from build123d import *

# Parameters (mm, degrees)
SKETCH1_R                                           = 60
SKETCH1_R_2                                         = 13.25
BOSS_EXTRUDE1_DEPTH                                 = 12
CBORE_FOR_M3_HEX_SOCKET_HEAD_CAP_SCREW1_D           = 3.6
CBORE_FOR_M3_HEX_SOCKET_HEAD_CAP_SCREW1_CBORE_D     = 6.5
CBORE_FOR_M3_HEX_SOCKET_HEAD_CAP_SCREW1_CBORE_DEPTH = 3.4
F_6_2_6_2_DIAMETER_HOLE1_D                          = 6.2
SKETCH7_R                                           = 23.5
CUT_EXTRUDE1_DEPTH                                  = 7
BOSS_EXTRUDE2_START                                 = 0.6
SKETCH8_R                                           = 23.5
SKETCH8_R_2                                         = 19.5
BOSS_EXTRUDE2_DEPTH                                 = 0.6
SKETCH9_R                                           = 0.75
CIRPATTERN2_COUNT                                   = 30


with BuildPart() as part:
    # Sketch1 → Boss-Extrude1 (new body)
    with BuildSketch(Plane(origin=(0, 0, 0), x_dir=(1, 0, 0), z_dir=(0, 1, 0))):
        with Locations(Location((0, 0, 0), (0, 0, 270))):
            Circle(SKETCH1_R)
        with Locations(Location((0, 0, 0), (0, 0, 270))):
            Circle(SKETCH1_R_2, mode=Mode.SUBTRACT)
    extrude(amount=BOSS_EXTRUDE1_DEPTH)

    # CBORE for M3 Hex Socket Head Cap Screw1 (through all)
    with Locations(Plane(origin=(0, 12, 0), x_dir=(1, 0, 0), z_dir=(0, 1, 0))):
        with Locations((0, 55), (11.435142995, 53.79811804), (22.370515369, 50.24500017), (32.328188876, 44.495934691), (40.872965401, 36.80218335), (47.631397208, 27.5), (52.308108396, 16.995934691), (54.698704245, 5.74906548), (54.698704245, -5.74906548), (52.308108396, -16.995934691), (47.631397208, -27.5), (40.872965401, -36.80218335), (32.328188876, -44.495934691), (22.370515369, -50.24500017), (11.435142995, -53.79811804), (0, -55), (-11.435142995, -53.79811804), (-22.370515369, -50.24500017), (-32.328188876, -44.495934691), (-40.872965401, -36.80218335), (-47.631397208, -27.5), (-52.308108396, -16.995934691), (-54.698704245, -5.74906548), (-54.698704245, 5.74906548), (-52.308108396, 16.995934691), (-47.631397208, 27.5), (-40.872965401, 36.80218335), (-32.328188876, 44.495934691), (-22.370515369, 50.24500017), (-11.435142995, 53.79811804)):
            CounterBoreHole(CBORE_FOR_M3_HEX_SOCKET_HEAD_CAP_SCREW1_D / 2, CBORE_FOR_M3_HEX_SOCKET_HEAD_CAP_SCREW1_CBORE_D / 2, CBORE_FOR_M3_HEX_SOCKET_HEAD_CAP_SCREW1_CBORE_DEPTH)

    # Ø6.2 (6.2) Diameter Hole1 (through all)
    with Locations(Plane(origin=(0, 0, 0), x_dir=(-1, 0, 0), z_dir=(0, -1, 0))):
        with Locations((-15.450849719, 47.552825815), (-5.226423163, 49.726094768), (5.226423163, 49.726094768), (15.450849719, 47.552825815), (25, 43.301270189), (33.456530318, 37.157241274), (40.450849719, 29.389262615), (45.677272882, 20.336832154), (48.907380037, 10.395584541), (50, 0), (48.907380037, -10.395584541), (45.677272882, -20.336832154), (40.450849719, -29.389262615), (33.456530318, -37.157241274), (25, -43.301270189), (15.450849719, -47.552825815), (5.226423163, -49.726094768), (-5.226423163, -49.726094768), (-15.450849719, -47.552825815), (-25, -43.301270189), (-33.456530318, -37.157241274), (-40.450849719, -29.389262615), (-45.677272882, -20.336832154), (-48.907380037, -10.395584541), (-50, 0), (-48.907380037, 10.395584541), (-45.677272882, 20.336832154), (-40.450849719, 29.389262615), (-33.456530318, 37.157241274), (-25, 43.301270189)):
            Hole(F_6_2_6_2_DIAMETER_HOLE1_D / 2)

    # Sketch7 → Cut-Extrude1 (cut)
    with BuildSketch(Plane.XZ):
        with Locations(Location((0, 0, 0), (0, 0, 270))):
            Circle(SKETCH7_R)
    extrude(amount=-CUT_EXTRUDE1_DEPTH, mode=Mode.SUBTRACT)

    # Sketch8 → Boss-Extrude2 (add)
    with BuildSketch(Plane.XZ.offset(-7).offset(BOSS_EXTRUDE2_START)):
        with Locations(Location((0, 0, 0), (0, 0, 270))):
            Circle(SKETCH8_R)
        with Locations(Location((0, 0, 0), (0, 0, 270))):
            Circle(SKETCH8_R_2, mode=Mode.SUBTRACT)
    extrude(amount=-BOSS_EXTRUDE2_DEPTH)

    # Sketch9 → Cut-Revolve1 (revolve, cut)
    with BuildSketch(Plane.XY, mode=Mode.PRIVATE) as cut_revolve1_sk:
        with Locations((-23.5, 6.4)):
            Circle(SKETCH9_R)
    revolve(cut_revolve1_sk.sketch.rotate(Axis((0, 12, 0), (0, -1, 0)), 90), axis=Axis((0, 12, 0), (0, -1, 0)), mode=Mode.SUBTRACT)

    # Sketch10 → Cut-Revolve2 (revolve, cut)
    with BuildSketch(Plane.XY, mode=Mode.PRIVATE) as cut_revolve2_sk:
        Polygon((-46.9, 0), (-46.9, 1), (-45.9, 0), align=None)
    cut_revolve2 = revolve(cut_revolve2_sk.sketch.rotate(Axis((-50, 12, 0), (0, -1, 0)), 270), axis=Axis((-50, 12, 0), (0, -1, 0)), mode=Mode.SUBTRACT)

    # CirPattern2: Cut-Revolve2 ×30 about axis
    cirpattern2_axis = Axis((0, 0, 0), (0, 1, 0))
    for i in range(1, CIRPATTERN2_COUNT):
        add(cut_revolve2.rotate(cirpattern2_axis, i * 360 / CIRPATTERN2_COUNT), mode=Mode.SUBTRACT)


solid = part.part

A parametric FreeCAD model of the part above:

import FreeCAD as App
import Part
import Sketcher
Q = App.Units.Quantity


def add_polygon(sketch, points):
    """Adds a closed chain of lines whose ends are joined by coincident constraints."""
    first, n = sketch.GeometryCount, len(points)
    for a, b in zip(points, points[1:] + points[:1]):
        sketch.addGeometry(Part.LineSegment(App.Vector(*a, 0), App.Vector(*b, 0)), False)
    for i in range(n):
        sketch.addConstraint(Sketcher.Constraint("Coincident", first + i, 2, first + (i + 1) % n, 1))

doc = App.newDocument("Part")
body = doc.addObject("PartDesign::Body", "Body")

sketch1 = body.newObject("Sketcher::SketchObject", "Sketch")
sketch1.AttachmentSupport = (doc.getObject("XZ_Plane"), [""])
sketch1.MapMode = "FlatFace"
sketch1.addGeometry(Part.Circle(App.Vector(0, 0, 0), App.Vector(0, 0, 1), 60), False)
sketch1.addGeometry(Part.Circle(App.Vector(0, 0, 0), App.Vector(0, 0, 1), 13.25), False)
sketch1.addConstraint(Sketcher.Constraint("Coincident", 0, 3, -1, 1))
sketch1.addConstraint(Sketcher.Constraint("Coincident", 1, 3, -1, 1))
sketch1.addConstraint(Sketcher.Constraint("Diameter", 0, Q("120 mm")))
sketch1.addConstraint(Sketcher.Constraint("Diameter", 1, Q("26.5 mm")))
pad1 = body.newObject("PartDesign::Pad", "Pad")
pad1.Profile = sketch1
pad1.Length = 12
pad1.Reversed = True

sketch2 = body.newObject("Sketcher::SketchObject", "Sketch001")
sketch2.AttachmentSupport = (doc.getObject("XZ_Plane"), [""])
sketch2.MapMode = "FlatFace"
sketch2.AttachmentOffset = App.Placement(App.Vector(0, 0, -12), App.Rotation())
sketch2.addGeometry(Part.Circle(App.Vector(0, -55, 0), App.Vector(0, 0, 1), 1.8), False)
sketch2.addGeometry(Part.Circle(App.Vector(11.435143, -53.798118, 0), App.Vector(0, 0, 1), 1.8), False)
sketch2.addGeometry(Part.Circle(App.Vector(22.370515, -50.245, 0), App.Vector(0, 0, 1), 1.8), False)
sketch2.addGeometry(Part.Circle(App.Vector(32.328189, -44.495935, 0), App.Vector(0, 0, 1), 1.8), False)
sketch2.addGeometry(Part.Circle(App.Vector(40.872965, -36.802183, 0), App.Vector(0, 0, 1), 1.8), False)
sketch2.addGeometry(Part.Circle(App.Vector(47.631397, -27.5, 0), App.Vector(0, 0, 1), 1.8), False)
sketch2.addGeometry(Part.Circle(App.Vector(52.308108, -16.995935, 0), App.Vector(0, 0, 1), 1.8), False)
sketch2.addGeometry(Part.Circle(App.Vector(54.698704, -5.749065, 0), App.Vector(0, 0, 1), 1.8), False)
sketch2.addGeometry(Part.Circle(App.Vector(54.698704, 5.749065, 0), App.Vector(0, 0, 1), 1.8), False)
sketch2.addGeometry(Part.Circle(App.Vector(52.308108, 16.995935, 0), App.Vector(0, 0, 1), 1.8), False)
sketch2.addGeometry(Part.Circle(App.Vector(47.631397, 27.5, 0), App.Vector(0, 0, 1), 1.8), False)
sketch2.addGeometry(Part.Circle(App.Vector(40.872965, 36.802183, 0), App.Vector(0, 0, 1), 1.8), False)
sketch2.addGeometry(Part.Circle(App.Vector(32.328189, 44.495935, 0), App.Vector(0, 0, 1), 1.8), False)
sketch2.addGeometry(Part.Circle(App.Vector(22.370515, 50.245, 0), App.Vector(0, 0, 1), 1.8), False)
sketch2.addGeometry(Part.Circle(App.Vector(11.435143, 53.798118, 0), App.Vector(0, 0, 1), 1.8), False)
sketch2.addGeometry(Part.Circle(App.Vector(0, 55, 0), App.Vector(0, 0, 1), 1.8), False)
sketch2.addGeometry(Part.Circle(App.Vector(-11.435143, 53.798118, 0), App.Vector(0, 0, 1), 1.8), False)
sketch2.addGeometry(Part.Circle(App.Vector(-22.370515, 50.245, 0), App.Vector(0, 0, 1), 1.8), False)
sketch2.addGeometry(Part.Circle(App.Vector(-32.328189, 44.495935, 0), App.Vector(0, 0, 1), 1.8), False)
sketch2.addGeometry(Part.Circle(App.Vector(-40.872965, 36.802183, 0), App.Vector(0, 0, 1), 1.8), False)
sketch2.addGeometry(Part.Circle(App.Vector(-47.631397, 27.5, 0), App.Vector(0, 0, 1), 1.8), False)
sketch2.addGeometry(Part.Circle(App.Vector(-52.308108, 16.995935, 0), App.Vector(0, 0, 1), 1.8), False)
sketch2.addGeometry(Part.Circle(App.Vector(-54.698704, 5.749065, 0), App.Vector(0, 0, 1), 1.8), False)
sketch2.addGeometry(Part.Circle(App.Vector(-54.698704, -5.749065, 0), App.Vector(0, 0, 1), 1.8), False)
sketch2.addGeometry(Part.Circle(App.Vector(-52.308108, -16.995935, 0), App.Vector(0, 0, 1), 1.8), False)
sketch2.addGeometry(Part.Circle(App.Vector(-47.631397, -27.5, 0), App.Vector(0, 0, 1), 1.8), False)
sketch2.addGeometry(Part.Circle(App.Vector(-40.872965, -36.802183, 0), App.Vector(0, 0, 1), 1.8), False)
sketch2.addGeometry(Part.Circle(App.Vector(-32.328189, -44.495935, 0), App.Vector(0, 0, 1), 1.8), False)
sketch2.addGeometry(Part.Circle(App.Vector(-22.370515, -50.245, 0), App.Vector(0, 0, 1), 1.8), False)
sketch2.addGeometry(Part.Circle(App.Vector(-11.435143, -53.798118, 0), App.Vector(0, 0, 1), 1.8), False)
sketch2.addConstraint(Sketcher.Constraint("Equal", 0, 1))
sketch2.addConstraint(Sketcher.Constraint("Equal", 1, 2))
sketch2.addConstraint(Sketcher.Constraint("Equal", 2, 3))
sketch2.addConstraint(Sketcher.Constraint("Equal", 3, 4))
sketch2.addConstraint(Sketcher.Constraint("Equal", 4, 5))
sketch2.addConstraint(Sketcher.Constraint("Equal", 5, 6))
sketch2.addConstraint(Sketcher.Constraint("Equal", 6, 7))
sketch2.addConstraint(Sketcher.Constraint("Equal", 7, 8))
sketch2.addConstraint(Sketcher.Constraint("Equal", 8, 9))
sketch2.addConstraint(Sketcher.Constraint("Equal", 9, 10))
sketch2.addConstraint(Sketcher.Constraint("Equal", 10, 11))
sketch2.addConstraint(Sketcher.Constraint("Equal", 11, 12))
sketch2.addConstraint(Sketcher.Constraint("Equal", 12, 13))
sketch2.addConstraint(Sketcher.Constraint("Equal", 13, 14))
sketch2.addConstraint(Sketcher.Constraint("Equal", 14, 15))
sketch2.addConstraint(Sketcher.Constraint("Equal", 15, 16))
sketch2.addConstraint(Sketcher.Constraint("Equal", 16, 17))
sketch2.addConstraint(Sketcher.Constraint("Equal", 17, 18))
sketch2.addConstraint(Sketcher.Constraint("Equal", 18, 19))
sketch2.addConstraint(Sketcher.Constraint("Equal", 19, 20))
sketch2.addConstraint(Sketcher.Constraint("Equal", 20, 21))
sketch2.addConstraint(Sketcher.Constraint("Equal", 21, 22))
sketch2.addConstraint(Sketcher.Constraint("Equal", 22, 23))
sketch2.addConstraint(Sketcher.Constraint("Equal", 23, 24))
sketch2.addConstraint(Sketcher.Constraint("Equal", 24, 25))
sketch2.addConstraint(Sketcher.Constraint("Equal", 25, 26))
sketch2.addConstraint(Sketcher.Constraint("Equal", 26, 27))
sketch2.addConstraint(Sketcher.Constraint("Equal", 27, 28))
sketch2.addConstraint(Sketcher.Constraint("Equal", 28, 29))
sketch2.addConstraint(Sketcher.Constraint("Symmetric", 0, 3, 15, 3, -1, 1))
sketch2.addConstraint(Sketcher.Constraint("Symmetric", 1, 3, 16, 3, -1, 1))
sketch2.addConstraint(Sketcher.Constraint("Symmetric", 2, 3, 17, 3, -1, 1))
sketch2.addConstraint(Sketcher.Constraint("Symmetric", 3, 3, 18, 3, -1, 1))
sketch2.addConstraint(Sketcher.Constraint("Symmetric", 4, 3, 19, 3, -1, 1))
sketch2.addConstraint(Sketcher.Constraint("Symmetric", 5, 3, 20, 3, -1, 1))
sketch2.addConstraint(Sketcher.Constraint("Symmetric", 6, 3, 21, 3, -1, 1))
sketch2.addConstraint(Sketcher.Constraint("Symmetric", 7, 3, 22, 3, -1, 1))
sketch2.addConstraint(Sketcher.Constraint("Symmetric", 8, 3, 23, 3, -1, 1))
sketch2.addConstraint(Sketcher.Constraint("Symmetric", 9, 3, 24, 3, -1, 1))
sketch2.addConstraint(Sketcher.Constraint("Symmetric", 10, 3, 25, 3, -1, 1))
sketch2.addConstraint(Sketcher.Constraint("Symmetric", 11, 3, 26, 3, -1, 1))
sketch2.addConstraint(Sketcher.Constraint("Symmetric", 12, 3, 27, 3, -1, 1))
sketch2.addConstraint(Sketcher.Constraint("Symmetric", 13, 3, 28, 3, -1, 1))
sketch2.addConstraint(Sketcher.Constraint("Symmetric", 14, 3, 29, 3, -1, 1))
sketch2.addConstraint(Sketcher.Constraint("Symmetric", 14, 3, 16, 3, -2))
sketch2.addConstraint(Sketcher.Constraint("Symmetric", 13, 3, 17, 3, -2))
sketch2.addConstraint(Sketcher.Constraint("Symmetric", 12, 3, 18, 3, -2))
sketch2.addConstraint(Sketcher.Constraint("Symmetric", 11, 3, 19, 3, -2))
sketch2.addConstraint(Sketcher.Constraint("Symmetric", 10, 3, 20, 3, -2))
sketch2.addConstraint(Sketcher.Constraint("Symmetric", 9, 3, 21, 3, -2))
sketch2.addConstraint(Sketcher.Constraint("Symmetric", 8, 3, 22, 3, -2))
sketch2.addConstraint(Sketcher.Constraint("PointOnObject", 0, 3, -2))
sketch2.addConstraint(Sketcher.Constraint("Diameter", 0, Q("3.6 mm")))
sketch2.addConstraint(Sketcher.Constraint("DistanceY", 0, 3, -1, 1, Q("55 mm")))
sketch2.addConstraint(Sketcher.Constraint("DistanceY", 5, 3, 10, 3, Q("55 mm")))
sketch2.addConstraint(Sketcher.Constraint("DistanceY", 3, 3, 6, 3, Q("27.5 mm")))
sketch2.addConstraint(Sketcher.Constraint("DistanceY", 2, 3, -1, 1, Q("50.245 mm")))
sketch2.addConstraint(Sketcher.Constraint("DistanceY", 6, 3, 8, 3, Q("22.745 mm")))
sketch2.addConstraint(Sketcher.Constraint("DistanceY", 1, 3, -1, 1, Q("53.798118 mm")))
sketch2.addConstraint(Sketcher.Constraint("DistanceX", -1, 1, 3, 3, Q("32.328189 mm")))
sketch2.addConstraint(Sketcher.Constraint("DistanceX", -1, 1, 6, 3, Q("52.308108 mm")))
sketch2.addConstraint(Sketcher.Constraint("DistanceY", 3, 3, 4, 3, Q("7.693751 mm")))
sketch2.addConstraint(Sketcher.Constraint("DistanceX", 2, 3, 4, 3, Q("18.50245 mm")))
sketch2.addConstraint(Sketcher.Constraint("DistanceX", 4, 3, 5, 3, Q("6.758432 mm")))
sketch2.addConstraint(Sketcher.Constraint("DistanceX", 3, 3, 5, 3, Q("15.303208 mm")))
sketch2.addConstraint(Sketcher.Constraint("DistanceY", 6, 3, 7, 3, Q("11.246869 mm")))
sketch2.addConstraint(Sketcher.Constraint("DistanceX", 4, 3, 7, 3, Q("13.825739 mm")))
sketch2.addConstraint(Sketcher.Constraint("DistanceX", 16, 3, 13, 3, Q("33.805658 mm")))
doc.recompute()
hole = body.newObject("PartDesign::Hole", "Hole")
hole.Profile = sketch2
hole.ThreadType = "None"
hole.Diameter = 3.6
hole.DepthType = "ThroughAll"
hole.HoleCutType = "Counterbore"
hole.HoleCutDiameter = 6.5
hole.HoleCutDepth = 3.4
hole.Reversed = True

sketch3 = body.newObject("Sketcher::SketchObject", "Sketch002")
sketch3.AttachmentSupport = (doc.getObject("XZ_Plane"), [""])
sketch3.MapMode = "FlatFace"
sketch3.addGeometry(Part.Circle(App.Vector(15.45085, -47.552826, 0), App.Vector(0, 0, 1), 3.1), False)
sketch3.addGeometry(Part.Circle(App.Vector(5.226423, -49.726095, 0), App.Vector(0, 0, 1), 3.1), False)
sketch3.addGeometry(Part.Circle(App.Vector(-5.226423, -49.726095, 0), App.Vector(0, 0, 1), 3.1), False)
sketch3.addGeometry(Part.Circle(App.Vector(-15.45085, -47.552826, 0), App.Vector(0, 0, 1), 3.1), False)
sketch3.addGeometry(Part.Circle(App.Vector(-25, -43.30127, 0), App.Vector(0, 0, 1), 3.1), False)
sketch3.addGeometry(Part.Circle(App.Vector(-33.45653, -37.157241, 0), App.Vector(0, 0, 1), 3.1), False)
sketch3.addGeometry(Part.Circle(App.Vector(-40.45085, -29.389263, 0), App.Vector(0, 0, 1), 3.1), False)
sketch3.addGeometry(Part.Circle(App.Vector(-45.677273, -20.336832, 0), App.Vector(0, 0, 1), 3.1), False)
sketch3.addGeometry(Part.Circle(App.Vector(-48.90738, -10.395585, 0), App.Vector(0, 0, 1), 3.1), False)
sketch3.addGeometry(Part.Circle(App.Vector(-50, 0, 0), App.Vector(0, 0, 1), 3.1), False)
sketch3.addGeometry(Part.Circle(App.Vector(-48.90738, 10.395585, 0), App.Vector(0, 0, 1), 3.1), False)
sketch3.addGeometry(Part.Circle(App.Vector(-45.677273, 20.336832, 0), App.Vector(0, 0, 1), 3.1), False)
sketch3.addGeometry(Part.Circle(App.Vector(-40.45085, 29.389263, 0), App.Vector(0, 0, 1), 3.1), False)
sketch3.addGeometry(Part.Circle(App.Vector(-33.45653, 37.157241, 0), App.Vector(0, 0, 1), 3.1), False)
sketch3.addGeometry(Part.Circle(App.Vector(-25, 43.30127, 0), App.Vector(0, 0, 1), 3.1), False)
sketch3.addGeometry(Part.Circle(App.Vector(-15.45085, 47.552826, 0), App.Vector(0, 0, 1), 3.1), False)
sketch3.addGeometry(Part.Circle(App.Vector(-5.226423, 49.726095, 0), App.Vector(0, 0, 1), 3.1), False)
sketch3.addGeometry(Part.Circle(App.Vector(5.226423, 49.726095, 0), App.Vector(0, 0, 1), 3.1), False)
sketch3.addGeometry(Part.Circle(App.Vector(15.45085, 47.552826, 0), App.Vector(0, 0, 1), 3.1), False)
sketch3.addGeometry(Part.Circle(App.Vector(25, 43.30127, 0), App.Vector(0, 0, 1), 3.1), False)
sketch3.addGeometry(Part.Circle(App.Vector(33.45653, 37.157241, 0), App.Vector(0, 0, 1), 3.1), False)
sketch3.addGeometry(Part.Circle(App.Vector(40.45085, 29.389263, 0), App.Vector(0, 0, 1), 3.1), False)
sketch3.addGeometry(Part.Circle(App.Vector(45.677273, 20.336832, 0), App.Vector(0, 0, 1), 3.1), False)
sketch3.addGeometry(Part.Circle(App.Vector(48.90738, 10.395585, 0), App.Vector(0, 0, 1), 3.1), False)
sketch3.addGeometry(Part.Circle(App.Vector(50, 0, 0), App.Vector(0, 0, 1), 3.1), False)
sketch3.addGeometry(Part.Circle(App.Vector(48.90738, -10.395585, 0), App.Vector(0, 0, 1), 3.1), False)
sketch3.addGeometry(Part.Circle(App.Vector(45.677273, -20.336832, 0), App.Vector(0, 0, 1), 3.1), False)
sketch3.addGeometry(Part.Circle(App.Vector(40.45085, -29.389263, 0), App.Vector(0, 0, 1), 3.1), False)
sketch3.addGeometry(Part.Circle(App.Vector(33.45653, -37.157241, 0), App.Vector(0, 0, 1), 3.1), False)
sketch3.addGeometry(Part.Circle(App.Vector(25, -43.30127, 0), App.Vector(0, 0, 1), 3.1), False)
sketch3.addConstraint(Sketcher.Constraint("Equal", 0, 1))
sketch3.addConstraint(Sketcher.Constraint("Equal", 1, 2))
sketch3.addConstraint(Sketcher.Constraint("Equal", 2, 3))
sketch3.addConstraint(Sketcher.Constraint("Equal", 3, 4))
sketch3.addConstraint(Sketcher.Constraint("Equal", 4, 5))
sketch3.addConstraint(Sketcher.Constraint("Equal", 5, 6))
sketch3.addConstraint(Sketcher.Constraint("Equal", 6, 7))
sketch3.addConstraint(Sketcher.Constraint("Equal", 7, 8))
sketch3.addConstraint(Sketcher.Constraint("Equal", 8, 9))
sketch3.addConstraint(Sketcher.Constraint("Equal", 9, 10))
sketch3.addConstraint(Sketcher.Constraint("Equal", 10, 11))
sketch3.addConstraint(Sketcher.Constraint("Equal", 11, 12))
sketch3.addConstraint(Sketcher.Constraint("Equal", 12, 13))
sketch3.addConstraint(Sketcher.Constraint("Equal", 13, 14))
sketch3.addConstraint(Sketcher.Constraint("Equal", 14, 15))
sketch3.addConstraint(Sketcher.Constraint("Equal", 15, 16))
sketch3.addConstraint(Sketcher.Constraint("Equal", 16, 17))
sketch3.addConstraint(Sketcher.Constraint("Equal", 17, 18))
sketch3.addConstraint(Sketcher.Constraint("Equal", 18, 19))
sketch3.addConstraint(Sketcher.Constraint("Equal", 19, 20))
sketch3.addConstraint(Sketcher.Constraint("Equal", 20, 21))
sketch3.addConstraint(Sketcher.Constraint("Equal", 21, 22))
sketch3.addConstraint(Sketcher.Constraint("Equal", 22, 23))
sketch3.addConstraint(Sketcher.Constraint("Equal", 23, 24))
sketch3.addConstraint(Sketcher.Constraint("Equal", 24, 25))
sketch3.addConstraint(Sketcher.Constraint("Equal", 25, 26))
sketch3.addConstraint(Sketcher.Constraint("Equal", 26, 27))
sketch3.addConstraint(Sketcher.Constraint("Equal", 27, 28))
sketch3.addConstraint(Sketcher.Constraint("Equal", 28, 29))
sketch3.addConstraint(Sketcher.Constraint("Symmetric", 0, 3, 15, 3, -1, 1))
sketch3.addConstraint(Sketcher.Constraint("Symmetric", 1, 3, 16, 3, -1, 1))
sketch3.addConstraint(Sketcher.Constraint("Symmetric", 2, 3, 17, 3, -1, 1))
sketch3.addConstraint(Sketcher.Constraint("Symmetric", 3, 3, 18, 3, -1, 1))
sketch3.addConstraint(Sketcher.Constraint("Symmetric", 4, 3, 19, 3, -1, 1))
sketch3.addConstraint(Sketcher.Constraint("Symmetric", 5, 3, 20, 3, -1, 1))
sketch3.addConstraint(Sketcher.Constraint("Symmetric", 6, 3, 21, 3, -1, 1))
sketch3.addConstraint(Sketcher.Constraint("Symmetric", 7, 3, 22, 3, -1, 1))
sketch3.addConstraint(Sketcher.Constraint("Symmetric", 8, 3, 23, 3, -1, 1))
sketch3.addConstraint(Sketcher.Constraint("Symmetric", 9, 3, 24, 3, -1, 1))
sketch3.addConstraint(Sketcher.Constraint("Symmetric", 10, 3, 25, 3, -1, 1))
sketch3.addConstraint(Sketcher.Constraint("Symmetric", 11, 3, 26, 3, -1, 1))
sketch3.addConstraint(Sketcher.Constraint("Symmetric", 12, 3, 27, 3, -1, 1))
sketch3.addConstraint(Sketcher.Constraint("Symmetric", 13, 3, 28, 3, -1, 1))
sketch3.addConstraint(Sketcher.Constraint("Symmetric", 14, 3, 29, 3, -1, 1))
sketch3.addConstraint(Sketcher.Constraint("Symmetric", 1, 3, 2, 3, -2))
sketch3.addConstraint(Sketcher.Constraint("Symmetric", 0, 3, 3, 3, -2))
sketch3.addConstraint(Sketcher.Constraint("Symmetric", 14, 3, 19, 3, -2))
sketch3.addConstraint(Sketcher.Constraint("Symmetric", 13, 3, 20, 3, -2))
sketch3.addConstraint(Sketcher.Constraint("Symmetric", 12, 3, 21, 3, -2))
sketch3.addConstraint(Sketcher.Constraint("Symmetric", 11, 3, 22, 3, -2))
sketch3.addConstraint(Sketcher.Constraint("Symmetric", 10, 3, 23, 3, -2))
sketch3.addConstraint(Sketcher.Constraint("PointOnObject", 9, 3, -1))
sketch3.addConstraint(Sketcher.Constraint("Diameter", 0, Q("6.2 mm")))
sketch3.addConstraint(Sketcher.Constraint("DistanceX", 4, 3, -1, 1, Q("25 mm")))
sketch3.addConstraint(Sketcher.Constraint("DistanceX", 9, 3, -1, 1, Q("50 mm")))
sketch3.addConstraint(Sketcher.Constraint("DistanceX", 6, 3, 3, 3, Q("25 mm")))
sketch3.addConstraint(Sketcher.Constraint("DistanceX", 3, 3, 0, 3, Q("30.901699 mm")))
sketch3.addConstraint(Sketcher.Constraint("DistanceY", 4, 3, -1, 1, Q("43.30127 mm")))
sketch3.addConstraint(Sketcher.Constraint("DistanceX", 5, 3, -1, 1, Q("33.45653 mm")))
sketch3.addConstraint(Sketcher.Constraint("DistanceY", 5, 3, -1, 1, Q("37.157241 mm")))
sketch3.addConstraint(Sketcher.Constraint("DistanceX", 8, 3, -1, 1, Q("48.90738 mm")))
sketch3.addConstraint(Sketcher.Constraint("DistanceY", 1, 3, 0, 3, Q("2.173269 mm")))
sketch3.addConstraint(Sketcher.Constraint("DistanceY", 5, 3, 6, 3, Q("7.767979 mm")))
sketch3.addConstraint(Sketcher.Constraint("DistanceY", 6, 3, 7, 3, Q("9.05243 mm")))
sketch3.addConstraint(Sketcher.Constraint("DistanceX", 7, 3, 2, 3, Q("40.45085 mm")))
sketch3.addConstraint(Sketcher.Constraint("DistanceY", 6, 3, 8, 3, Q("18.993678 mm")))
sketch3.addConstraint(Sketcher.Constraint("DistanceY", 3, 3, 8, 3, Q("37.157241 mm")))
sketch3.addConstraint(Sketcher.Constraint("DistanceX", -1, 1, 1, 3, Q("5.226423 mm")))
doc.recompute()
hole2 = body.newObject("PartDesign::Hole", "Hole001")
hole2.Profile = sketch3
hole2.ThreadType = "None"
hole2.Diameter = 6.2
hole2.DepthType = "ThroughAll"

sketch4 = body.newObject("Sketcher::SketchObject", "Sketch003")
sketch4.AttachmentSupport = (doc.getObject("XZ_Plane"), [""])
sketch4.MapMode = "FlatFace"
sketch4.addGeometry(Part.Circle(App.Vector(0, 0, 0), App.Vector(0, 0, 1), 23.5), False)
sketch4.addConstraint(Sketcher.Constraint("Coincident", 0, 3, -1, 1))
sketch4.addConstraint(Sketcher.Constraint("Diameter", 0, Q("47 mm")))
pocket1 = body.newObject("PartDesign::Pocket", "Pocket")
pocket1.Profile = sketch4
pocket1.Length = 7

sketch5 = body.newObject("Sketcher::SketchObject", "Sketch004")
sketch5.AttachmentSupport = (doc.getObject("XZ_Plane"), [""])
sketch5.MapMode = "FlatFace"
sketch5.AttachmentOffset = App.Placement(App.Vector(0, 0, -6.4), App.Rotation())
sketch5.addGeometry(Part.Circle(App.Vector(0, 0, 0), App.Vector(0, 0, 1), 23.5), False)
sketch5.addGeometry(Part.Circle(App.Vector(0, 0, 0), App.Vector(0, 0, 1), 19.5), False)
sketch5.addConstraint(Sketcher.Constraint("Coincident", 0, 3, -1, 1))
sketch5.addConstraint(Sketcher.Constraint("Coincident", 1, 3, -1, 1))
sketch5.addConstraint(Sketcher.Constraint("Diameter", 0, Q("47 mm")))
sketch5.addConstraint(Sketcher.Constraint("Diameter", 1, Q("39 mm")))
pad2 = body.newObject("PartDesign::Pad", "Pad001")
pad2.Profile = sketch5
pad2.Length = 0.6
pad2.Reversed = True

sketch6 = body.newObject("Sketcher::SketchObject", "Sketch005")
sketch6.AttachmentSupport = (doc.getObject("XY_Plane"), [""])
sketch6.MapMode = "FlatFace"
sketch6.addGeometry(Part.Circle(App.Vector(-23.5, 6.4, 0), App.Vector(0, 0, 1), 0.75), False)
sketch6.addConstraint(Sketcher.Constraint("Diameter", 0, Q("1.5 mm")))
sketch6.addConstraint(Sketcher.Constraint("DistanceX", 0, 3, -1, 1, Q("23.5 mm")))
sketch6.addConstraint(Sketcher.Constraint("DistanceY", -1, 1, 0, 3, Q("6.4 mm")))
groove = body.newObject("PartDesign::Groove", "Groove")
groove.Profile = sketch6
groove.ReferenceAxis = (sketch6, ["V_Axis"])
groove.Angle = 360

sketch7 = body.newObject("Sketcher::SketchObject", "Sketch006")
sketch7.AttachmentSupport = (doc.getObject("XY_Plane"), [""])
sketch7.MapMode = "FlatFace"
add_polygon(sketch7, [(-46.9, 1), (-46.9, 0), (-45.9, 0)])
sketch7.addGeometry(Part.LineSegment(App.Vector(-50, 1, 0), App.Vector(-50, 0, 0)), True)
sketch7.addConstraint(Sketcher.Constraint("Vertical", 0))
sketch7.addConstraint(Sketcher.Constraint("Horizontal", 1))
sketch7.addConstraint(Sketcher.Constraint("Vertical", 3))
sketch7.addConstraint(Sketcher.Constraint("PointOnObject", 0, 2, -1))
sketch7.addConstraint(Sketcher.Constraint("PointOnObject", 3, 2, -1))
sketch7.addConstraint(Sketcher.Constraint("Horizontal", 2, 2, 3, 1))
sketch7.addConstraint(Sketcher.Constraint("Equal", 1, 0))
sketch7.addConstraint(Sketcher.Constraint("DistanceX", 1, 1, 1, 2, Q("1 mm")))
sketch7.addConstraint(Sketcher.Constraint("DistanceX", 3, 1, -1, 1, Q("50 mm")))
sketch7.addConstraint(Sketcher.Constraint("DistanceX", 0, 2, -1, 1, Q("46.9 mm")))
groove2 = body.newObject("PartDesign::Groove", "Groove001")
groove2.Profile = sketch7
groove2.ReferenceAxis = (sketch7, ["Axis0"])
groove2.Angle = 360
doc.recompute()

polarpattern = body.newObject("PartDesign::PolarPattern", "PolarPattern")
polarpattern.Originals = [groove2]
polarpattern.Axis = (doc.getObject("Y_Axis"), [""])
polarpattern.Angle = 360
polarpattern.Occurrences = 30
body.Tip = polarpattern

doc.recompute()
